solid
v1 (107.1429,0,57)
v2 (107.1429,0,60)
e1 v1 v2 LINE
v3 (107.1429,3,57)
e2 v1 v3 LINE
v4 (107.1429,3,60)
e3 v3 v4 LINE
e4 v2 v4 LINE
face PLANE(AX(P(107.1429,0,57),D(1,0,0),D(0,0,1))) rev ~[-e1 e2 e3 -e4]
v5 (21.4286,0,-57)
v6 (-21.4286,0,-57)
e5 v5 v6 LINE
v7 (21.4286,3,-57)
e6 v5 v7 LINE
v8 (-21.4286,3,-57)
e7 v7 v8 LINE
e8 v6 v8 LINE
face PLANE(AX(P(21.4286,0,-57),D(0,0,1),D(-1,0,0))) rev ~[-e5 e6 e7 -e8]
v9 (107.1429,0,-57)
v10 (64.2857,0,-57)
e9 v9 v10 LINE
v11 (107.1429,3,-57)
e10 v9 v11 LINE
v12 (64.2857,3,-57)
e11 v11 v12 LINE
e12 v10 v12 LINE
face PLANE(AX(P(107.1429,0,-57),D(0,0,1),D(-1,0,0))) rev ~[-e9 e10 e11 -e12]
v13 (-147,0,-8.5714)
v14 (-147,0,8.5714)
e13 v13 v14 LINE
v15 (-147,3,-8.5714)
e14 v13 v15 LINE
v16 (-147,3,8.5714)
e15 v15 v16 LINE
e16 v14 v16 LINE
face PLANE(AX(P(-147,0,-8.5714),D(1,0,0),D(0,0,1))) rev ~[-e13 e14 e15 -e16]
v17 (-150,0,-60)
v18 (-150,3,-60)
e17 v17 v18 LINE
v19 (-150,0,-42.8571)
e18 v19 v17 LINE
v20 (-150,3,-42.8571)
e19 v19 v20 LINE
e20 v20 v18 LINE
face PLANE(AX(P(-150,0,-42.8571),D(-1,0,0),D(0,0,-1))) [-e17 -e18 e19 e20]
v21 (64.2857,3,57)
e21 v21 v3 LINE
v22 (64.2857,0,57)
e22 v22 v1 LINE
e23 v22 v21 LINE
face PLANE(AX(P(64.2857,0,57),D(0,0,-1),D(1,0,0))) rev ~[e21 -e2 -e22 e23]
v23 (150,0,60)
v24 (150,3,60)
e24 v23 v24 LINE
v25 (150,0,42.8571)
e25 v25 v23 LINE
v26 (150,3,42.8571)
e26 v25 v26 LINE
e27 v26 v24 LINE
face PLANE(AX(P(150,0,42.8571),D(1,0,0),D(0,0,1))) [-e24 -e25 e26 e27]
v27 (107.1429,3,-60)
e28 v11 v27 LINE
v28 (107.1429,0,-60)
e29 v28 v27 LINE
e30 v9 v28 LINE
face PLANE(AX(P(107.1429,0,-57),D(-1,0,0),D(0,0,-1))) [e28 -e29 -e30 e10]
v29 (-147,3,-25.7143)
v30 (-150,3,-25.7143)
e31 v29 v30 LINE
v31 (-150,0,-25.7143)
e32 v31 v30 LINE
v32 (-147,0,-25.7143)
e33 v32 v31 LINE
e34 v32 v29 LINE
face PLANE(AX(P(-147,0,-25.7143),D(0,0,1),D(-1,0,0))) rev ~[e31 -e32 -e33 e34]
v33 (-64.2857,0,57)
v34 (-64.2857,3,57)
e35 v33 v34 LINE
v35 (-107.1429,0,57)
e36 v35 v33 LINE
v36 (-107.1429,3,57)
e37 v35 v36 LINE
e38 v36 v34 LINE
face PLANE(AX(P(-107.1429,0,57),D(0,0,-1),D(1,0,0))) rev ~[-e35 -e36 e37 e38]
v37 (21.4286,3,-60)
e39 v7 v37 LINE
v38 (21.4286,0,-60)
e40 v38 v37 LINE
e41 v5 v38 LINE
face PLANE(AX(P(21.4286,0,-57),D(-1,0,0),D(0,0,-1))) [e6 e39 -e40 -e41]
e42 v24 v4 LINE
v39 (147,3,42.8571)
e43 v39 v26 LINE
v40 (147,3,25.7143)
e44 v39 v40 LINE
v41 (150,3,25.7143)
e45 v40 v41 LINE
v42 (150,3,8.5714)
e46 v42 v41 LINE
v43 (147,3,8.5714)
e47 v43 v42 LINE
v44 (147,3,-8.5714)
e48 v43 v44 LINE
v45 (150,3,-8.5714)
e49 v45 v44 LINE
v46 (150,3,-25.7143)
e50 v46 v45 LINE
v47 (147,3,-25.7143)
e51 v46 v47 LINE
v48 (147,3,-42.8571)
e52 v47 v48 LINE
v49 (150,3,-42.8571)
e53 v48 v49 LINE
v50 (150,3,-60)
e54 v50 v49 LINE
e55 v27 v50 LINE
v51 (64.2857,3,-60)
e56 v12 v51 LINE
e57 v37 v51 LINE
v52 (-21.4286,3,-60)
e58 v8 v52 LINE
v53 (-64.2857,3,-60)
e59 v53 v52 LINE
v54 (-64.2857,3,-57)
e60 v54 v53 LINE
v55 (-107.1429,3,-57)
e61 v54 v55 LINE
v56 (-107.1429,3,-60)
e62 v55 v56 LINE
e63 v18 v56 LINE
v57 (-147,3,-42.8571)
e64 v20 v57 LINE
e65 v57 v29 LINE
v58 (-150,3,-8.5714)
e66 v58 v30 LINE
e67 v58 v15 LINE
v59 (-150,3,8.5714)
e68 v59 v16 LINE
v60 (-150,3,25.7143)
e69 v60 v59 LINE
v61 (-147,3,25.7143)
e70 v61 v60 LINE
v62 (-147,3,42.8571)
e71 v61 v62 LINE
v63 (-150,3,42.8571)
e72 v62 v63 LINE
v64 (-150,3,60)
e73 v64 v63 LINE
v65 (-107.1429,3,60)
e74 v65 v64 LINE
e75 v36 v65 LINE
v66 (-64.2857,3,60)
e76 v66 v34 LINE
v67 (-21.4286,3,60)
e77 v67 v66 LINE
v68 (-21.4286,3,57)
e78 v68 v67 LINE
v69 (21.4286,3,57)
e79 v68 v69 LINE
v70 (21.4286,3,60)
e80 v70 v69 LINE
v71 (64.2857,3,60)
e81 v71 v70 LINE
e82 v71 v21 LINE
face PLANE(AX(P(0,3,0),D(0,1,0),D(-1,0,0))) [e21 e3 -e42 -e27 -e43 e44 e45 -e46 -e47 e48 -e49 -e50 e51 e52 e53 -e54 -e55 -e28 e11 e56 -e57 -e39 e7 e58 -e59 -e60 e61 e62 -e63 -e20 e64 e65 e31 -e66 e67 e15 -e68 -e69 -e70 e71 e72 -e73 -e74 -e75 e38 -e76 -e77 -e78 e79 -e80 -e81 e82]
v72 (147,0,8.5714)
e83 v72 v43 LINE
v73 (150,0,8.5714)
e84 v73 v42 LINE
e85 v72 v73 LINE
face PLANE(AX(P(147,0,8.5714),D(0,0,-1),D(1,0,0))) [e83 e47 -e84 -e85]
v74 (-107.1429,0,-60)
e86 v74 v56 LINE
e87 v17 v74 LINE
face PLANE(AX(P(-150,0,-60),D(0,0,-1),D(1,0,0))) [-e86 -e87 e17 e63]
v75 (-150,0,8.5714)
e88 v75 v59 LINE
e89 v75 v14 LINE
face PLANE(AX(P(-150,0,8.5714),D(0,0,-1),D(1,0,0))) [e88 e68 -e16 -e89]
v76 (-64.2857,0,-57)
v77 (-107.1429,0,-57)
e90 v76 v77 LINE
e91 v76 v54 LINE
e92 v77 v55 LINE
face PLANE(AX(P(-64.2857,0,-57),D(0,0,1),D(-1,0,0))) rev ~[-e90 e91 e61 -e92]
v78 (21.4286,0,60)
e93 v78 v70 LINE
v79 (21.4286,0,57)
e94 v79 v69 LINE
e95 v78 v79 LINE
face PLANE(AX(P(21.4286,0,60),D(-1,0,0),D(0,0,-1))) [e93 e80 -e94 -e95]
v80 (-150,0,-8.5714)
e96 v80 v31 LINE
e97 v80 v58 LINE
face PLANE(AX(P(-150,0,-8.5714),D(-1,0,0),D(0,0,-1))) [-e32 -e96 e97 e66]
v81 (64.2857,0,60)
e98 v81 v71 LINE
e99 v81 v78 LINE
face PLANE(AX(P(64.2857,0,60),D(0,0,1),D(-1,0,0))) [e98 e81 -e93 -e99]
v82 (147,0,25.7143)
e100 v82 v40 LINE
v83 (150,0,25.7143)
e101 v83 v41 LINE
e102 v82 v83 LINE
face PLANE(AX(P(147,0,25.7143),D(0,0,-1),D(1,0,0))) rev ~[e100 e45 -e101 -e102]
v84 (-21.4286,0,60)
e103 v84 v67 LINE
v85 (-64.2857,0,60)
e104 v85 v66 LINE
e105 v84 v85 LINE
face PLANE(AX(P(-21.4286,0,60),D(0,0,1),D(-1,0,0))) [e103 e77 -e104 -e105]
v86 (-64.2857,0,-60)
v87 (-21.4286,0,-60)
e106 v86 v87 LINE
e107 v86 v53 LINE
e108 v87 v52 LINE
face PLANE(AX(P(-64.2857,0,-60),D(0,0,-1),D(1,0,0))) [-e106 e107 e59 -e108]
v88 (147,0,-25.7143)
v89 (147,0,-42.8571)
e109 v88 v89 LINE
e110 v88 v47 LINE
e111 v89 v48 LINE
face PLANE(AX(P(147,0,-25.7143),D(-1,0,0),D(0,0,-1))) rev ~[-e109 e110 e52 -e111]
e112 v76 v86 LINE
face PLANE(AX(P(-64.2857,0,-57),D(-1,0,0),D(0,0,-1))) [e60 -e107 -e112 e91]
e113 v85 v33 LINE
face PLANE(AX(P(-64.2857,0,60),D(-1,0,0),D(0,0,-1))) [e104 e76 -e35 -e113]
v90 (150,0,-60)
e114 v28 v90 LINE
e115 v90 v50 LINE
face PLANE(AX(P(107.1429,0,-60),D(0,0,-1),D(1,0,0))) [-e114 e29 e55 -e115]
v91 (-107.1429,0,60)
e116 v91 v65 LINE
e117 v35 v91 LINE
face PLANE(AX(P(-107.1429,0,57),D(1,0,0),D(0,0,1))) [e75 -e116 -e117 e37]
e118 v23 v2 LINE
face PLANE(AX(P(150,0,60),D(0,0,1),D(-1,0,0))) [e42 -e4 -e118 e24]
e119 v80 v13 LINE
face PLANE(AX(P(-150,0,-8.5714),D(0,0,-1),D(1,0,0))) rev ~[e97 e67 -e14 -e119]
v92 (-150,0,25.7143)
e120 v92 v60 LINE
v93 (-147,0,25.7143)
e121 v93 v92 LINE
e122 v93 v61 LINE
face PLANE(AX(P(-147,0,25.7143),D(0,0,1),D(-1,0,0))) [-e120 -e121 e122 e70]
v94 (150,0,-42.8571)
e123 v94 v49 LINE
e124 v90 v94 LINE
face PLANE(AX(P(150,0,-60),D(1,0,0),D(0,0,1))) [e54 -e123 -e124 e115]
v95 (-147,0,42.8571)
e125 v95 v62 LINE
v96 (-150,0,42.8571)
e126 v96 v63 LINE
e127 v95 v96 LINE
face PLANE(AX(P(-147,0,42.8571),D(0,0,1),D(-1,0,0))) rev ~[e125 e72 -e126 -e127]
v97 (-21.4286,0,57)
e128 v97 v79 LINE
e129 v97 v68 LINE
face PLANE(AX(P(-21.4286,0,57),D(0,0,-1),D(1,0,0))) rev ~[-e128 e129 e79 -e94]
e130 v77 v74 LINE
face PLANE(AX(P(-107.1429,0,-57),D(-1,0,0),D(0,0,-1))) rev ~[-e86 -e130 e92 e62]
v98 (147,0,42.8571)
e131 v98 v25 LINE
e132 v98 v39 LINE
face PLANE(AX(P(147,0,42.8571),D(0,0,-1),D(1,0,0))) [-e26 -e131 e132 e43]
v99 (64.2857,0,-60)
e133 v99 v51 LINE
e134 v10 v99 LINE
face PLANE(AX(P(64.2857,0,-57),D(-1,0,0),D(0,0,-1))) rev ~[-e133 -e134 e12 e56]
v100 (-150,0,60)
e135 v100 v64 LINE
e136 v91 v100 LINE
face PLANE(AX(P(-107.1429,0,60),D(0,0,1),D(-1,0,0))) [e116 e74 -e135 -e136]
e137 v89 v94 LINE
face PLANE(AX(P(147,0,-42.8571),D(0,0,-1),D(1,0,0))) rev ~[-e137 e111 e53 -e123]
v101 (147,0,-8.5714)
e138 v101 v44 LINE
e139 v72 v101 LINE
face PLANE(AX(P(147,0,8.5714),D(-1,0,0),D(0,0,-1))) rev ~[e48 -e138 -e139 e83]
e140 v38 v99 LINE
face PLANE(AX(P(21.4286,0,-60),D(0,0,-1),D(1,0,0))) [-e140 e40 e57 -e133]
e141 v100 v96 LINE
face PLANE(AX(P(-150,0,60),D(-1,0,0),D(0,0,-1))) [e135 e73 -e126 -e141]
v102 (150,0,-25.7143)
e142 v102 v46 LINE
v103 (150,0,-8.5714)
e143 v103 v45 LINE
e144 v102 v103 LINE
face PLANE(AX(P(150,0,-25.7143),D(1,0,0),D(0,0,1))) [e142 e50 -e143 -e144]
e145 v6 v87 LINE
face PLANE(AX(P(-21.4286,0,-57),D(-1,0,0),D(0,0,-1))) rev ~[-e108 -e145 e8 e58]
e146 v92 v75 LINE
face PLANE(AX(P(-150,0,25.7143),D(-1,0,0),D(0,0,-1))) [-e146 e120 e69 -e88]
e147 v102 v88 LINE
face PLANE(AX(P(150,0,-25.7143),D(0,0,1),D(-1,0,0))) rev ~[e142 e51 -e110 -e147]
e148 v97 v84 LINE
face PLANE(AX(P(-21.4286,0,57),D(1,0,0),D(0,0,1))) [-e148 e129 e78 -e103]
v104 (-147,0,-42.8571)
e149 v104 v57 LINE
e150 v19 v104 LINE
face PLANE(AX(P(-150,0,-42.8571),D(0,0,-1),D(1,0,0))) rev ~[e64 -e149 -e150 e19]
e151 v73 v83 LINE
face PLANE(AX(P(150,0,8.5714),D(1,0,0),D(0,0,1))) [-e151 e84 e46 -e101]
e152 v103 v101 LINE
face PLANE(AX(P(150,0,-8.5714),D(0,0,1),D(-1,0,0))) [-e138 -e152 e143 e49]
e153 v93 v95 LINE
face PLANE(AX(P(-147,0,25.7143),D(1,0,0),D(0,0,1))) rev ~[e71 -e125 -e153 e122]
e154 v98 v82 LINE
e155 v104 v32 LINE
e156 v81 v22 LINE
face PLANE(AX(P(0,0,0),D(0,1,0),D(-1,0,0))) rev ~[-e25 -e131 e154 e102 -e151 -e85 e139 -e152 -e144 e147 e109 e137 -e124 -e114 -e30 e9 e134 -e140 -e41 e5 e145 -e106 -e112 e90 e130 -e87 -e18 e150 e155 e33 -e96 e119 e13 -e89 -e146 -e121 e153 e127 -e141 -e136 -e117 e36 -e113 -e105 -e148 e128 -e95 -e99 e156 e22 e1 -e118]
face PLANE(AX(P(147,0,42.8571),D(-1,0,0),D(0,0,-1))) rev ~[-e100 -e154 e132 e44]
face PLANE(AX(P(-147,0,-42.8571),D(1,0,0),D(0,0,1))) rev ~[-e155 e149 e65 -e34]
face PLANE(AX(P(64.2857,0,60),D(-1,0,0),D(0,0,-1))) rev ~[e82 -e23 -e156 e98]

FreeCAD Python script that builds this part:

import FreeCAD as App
import Part
import Sketcher
from FreeCAD import Vector
Q = App.Units.Quantity

doc = App.newDocument("Part")
body = doc.addObject("PartDesign::Body", "Body")

# Sketch on XZ plane
sketch1 = body.newObject("Sketcher::SketchObject", "Sketch")
sketch1.AttachmentSupport = (doc.getObject("XZ_Plane"), [""])
sketch1.MapMode = "FlatFace"
sketch1.addGeometry(Part.LineSegment(Vector(-107.1, 60, 0), Vector(-107.1, 57, 0)), False)
sketch1.addGeometry(Part.LineSegment(Vector(-107.1, 57, 0), Vector(-64.3, 57, 0)), False)
sketch1.addGeometry(Part.LineSegment(Vector(-64.3, 57, 0), Vector(-64.3, 60, 0)), False)
sketch1.addGeometry(Part.LineSegment(Vector(-64.3, 60, 0), Vector(-21.4, 60, 0)), False)
sketch1.addGeometry(Part.LineSegment(Vector(-21.4, 60, 0), Vector(-21.4, 57, 0)), False)
sketch1.addGeometry(Part.LineSegment(Vector(-21.4, 57, 0), Vector(21.4, 57, 0)), False)
sketch1.addGeometry(Part.LineSegment(Vector(21.4, 57, 0), Vector(21.4, 60, 0)), False)
sketch1.addGeometry(Part.LineSegment(Vector(21.4, 60, 0), Vector(64.3, 60, 0)), False)
sketch1.addGeometry(Part.LineSegment(Vector(64.3, 60, 0), Vector(64.3, 57, 0)), False)
sketch1.addGeometry(Part.LineSegment(Vector(64.3, 57, 0), Vector(107.1, 57, 0)), False)
sketch1.addGeometry(Part.LineSegment(Vector(107.1, 57, 0), Vector(107.1, 60, 0)), False)
sketch1.addGeometry(Part.LineSegment(Vector(107.1, 60, 0), Vector(150, 60, 0)), False)
sketch1.addGeometry(Part.LineSegment(Vector(150, 60, 0), Vector(150, 42.9, 0)), False)
sketch1.addGeometry(Part.LineSegment(Vector(150, 42.9, 0), Vector(147, 42.9, 0)), False)
sketch1.addGeometry(Part.LineSegment(Vector(147, 42.9, 0), Vector(147, 25.7, 0)), False)
sketch1.addGeometry(Part.LineSegment(Vector(147, 25.7, 0), Vector(150, 25.7, 0)), False)
sketch1.addGeometry(Part.LineSegment(Vector(150, 25.7, 0), Vector(150, 8.6, 0)), False)
sketch1.addGeometry(Part.LineSegment(Vector(150, 8.6, 0), Vector(147, 8.6, 0)), False)
sketch1.addGeometry(Part.LineSegment(Vector(147, 8.6, 0), Vector(147, -8.6, 0)), False)
sketch1.addGeometry(Part.LineSegment(Vector(147, -8.6, 0), Vector(150, -8.6, 0)), False)
sketch1.addGeometry(Part.LineSegment(Vector(150, -8.6, 0), Vector(150, -25.7, 0)), False)
sketch1.addGeometry(Part.LineSegment(Vector(150, -25.7, 0), Vector(147, -25.7, 0)), False)
sketch1.addGeometry(Part.LineSegment(Vector(147, -25.7, 0), Vector(147, -42.9, 0)), False)
sketch1.addGeometry(Part.LineSegment(Vector(147, -42.9, 0), Vector(150, -42.9, 0)), False)
sketch1.addGeometry(Part.LineSegment(Vector(150, -42.9, 0), Vector(150, -60, 0)), False)
sketch1.addGeometry(Part.LineSegment(Vector(150, -60, 0), Vector(107.1, -60, 0)), False)
sketch1.addGeometry(Part.LineSegment(Vector(107.1, -60, 0), Vector(107.1, -57, 0)), False)
sketch1.addGeometry(Part.LineSegment(Vector(107.1, -57, 0), Vector(64.3, -57, 0)), False)
sketch1.addGeometry(Part.LineSegment(Vector(64.3, -57, 0), Vector(64.3, -60, 0)), False)
sketch1.addGeometry(Part.LineSegment(Vector(64.3, -60, 0), Vector(21.4, -60, 0)), False)
sketch1.addGeometry(Part.LineSegment(Vector(21.4, -60, 0), Vector(21.4, -57, 0)), False)
sketch1.addGeometry(Part.LineSegment(Vector(21.4, -57, 0), Vector(-21.4, -57, 0)), False)
sketch1.addGeometry(Part.LineSegment(Vector(-21.4, -57, 0), Vector(-21.4, -60, 0)), False)
sketch1.addGeometry(Part.LineSegment(Vector(-21.4, -60, 0), Vector(-64.3, -60, 0)), False)
sketch1.addGeometry(Part.LineSegment(Vector(-64.3, -60, 0), Vector(-64.3, -57, 0)), False)
sketch1.addGeometry(Part.LineSegment(Vector(-64.3, -57, 0), Vector(-107.1, -57, 0)), False)
sketch1.addGeometry(Part.LineSegment(Vector(-107.1, -57, 0), Vector(-107.1, -60, 0)), False)
sketch1.addGeometry(Part.LineSegment(Vector(-107.1, -60, 0), Vector(-150, -60, 0)), False)
sketch1.addGeometry(Part.LineSegment(Vector(-150, -60, 0), Vector(-150, -42.9, 0)), False)
sketch1.addGeometry(Part.LineSegment(Vector(-150, -42.9, 0), Vector(-147, -42.9, 0)), False)
sketch1.addGeometry(Part.LineSegment(Vector(-147, -42.9, 0), Vector(-147, -25.7, 0)), False)
sketch1.addGeometry(Part.LineSegment(Vector(-147, -25.7, 0), Vector(-150, -25.7, 0)), False)
sketch1.addGeometry(Part.LineSegment(Vector(-150, -25.7, 0), Vector(-150, -8.6, 0)), False)
sketch1.addGeometry(Part.LineSegment(Vector(-150, -8.6, 0), Vector(-147, -8.6, 0)), False)
sketch1.addGeometry(Part.LineSegment(Vector(-147, -8.6, 0), Vector(-147, 8.6, 0)), False)
sketch1.addGeometry(Part.LineSegment(Vector(-147, 8.6, 0), Vector(-150, 8.6, 0)), False)
sketch1.addGeometry(Part.LineSegment(Vector(-150, 8.6, 0), Vector(-150, 25.7, 0)), False)
sketch1.addGeometry(Part.LineSegment(Vector(-150, 25.7, 0), Vector(-147, 25.7, 0)), False)
sketch1.addGeometry(Part.LineSegment(Vector(-147, 25.7, 0), Vector(-147, 42.9, 0)), False)
sketch1.addGeometry(Part.LineSegment(Vector(-147, 42.9, 0), Vector(-150, 42.9, 0)), False)
sketch1.addGeometry(Part.LineSegment(Vector(-150, 42.9, 0), Vector(-150, 60, 0)), False)
sketch1.addGeometry(Part.LineSegment(Vector(-150, 60, 0), Vector(-107.1, 60, 0)), False)
sketch1.addConstraint(Sketcher.Constraint("Coincident", 0, 2, 1, 1))
sketch1.addConstraint(Sketcher.Constraint("Coincident", 1, 2, 2, 1))
sketch1.addConstraint(Sketcher.Constraint("Coincident", 2, 2, 3, 1))
sketch1.addConstraint(Sketcher.Constraint("Coincident", 3, 2, 4, 1))
sketch1.addConstraint(Sketcher.Constraint("Coincident", 4, 2, 5, 1))
sketch1.addConstraint(Sketcher.Constraint("Coincident", 5, 2, 6, 1))
sketch1.addConstraint(Sketcher.Constraint("Coincident", 6, 2, 7, 1))
sketch1.addConstraint(Sketcher.Constraint("Coincident", 7, 2, 8, 1))
sketch1.addConstraint(Sketcher.Constraint("Coincident", 8, 2, 9, 1))
sketch1.addConstraint(Sketcher.Constraint("Coincident", 9, 2, 10, 1))
sketch1.addConstraint(Sketcher.Constraint("Coincident", 10, 2, 11, 1))
sketch1.addConstraint(Sketcher.Constraint("Coincident", 11, 2, 12, 1))
sketch1.addConstraint(Sketcher.Constraint("Coincident", 12, 2, 13, 1))
sketch1.addConstraint(Sketcher.Constraint("Coincident", 13, 2, 14, 1))
sketch1.addConstraint(Sketcher.Constraint("Coincident", 14, 2, 15, 1))
sketch1.addConstraint(Sketcher.Constraint("Coincident", 15, 2, 16, 1))
sketch1.addConstraint(Sketcher.Constraint("Coincident", 16, 2, 17, 1))
sketch1.addConstraint(Sketcher.Constraint("Coincident", 17, 2, 18, 1))
sketch1.addConstraint(Sketcher.Constraint("Coincident", 18, 2, 19, 1))
sketch1.addConstraint(Sketcher.Constraint("Coincident", 19, 2, 20, 1))
sketch1.addConstraint(Sketcher.Constraint("Coincident", 20, 2, 21, 1))
sketch1.addConstraint(Sketcher.Constraint("Coincident", 21, 2, 22, 1))
sketch1.addConstraint(Sketcher.Constraint("Coincident", 22, 2, 23, 1))
sketch1.addConstraint(Sketcher.Constraint("Coincident", 23, 2, 24, 1))
sketch1.addConstraint(Sketcher.Constraint("Coincident", 24, 2, 25, 1))
sketch1.addConstraint(Sketcher.Constraint("Coincident", 25, 2, 26, 1))
sketch1.addConstraint(Sketcher.Constraint("Coincident", 26, 2, 27, 1))
sketch1.addConstraint(Sketcher.Constraint("Coincident", 27, 2, 28, 1))
sketch1.addConstraint(Sketcher.Constraint("Coincident", 28, 2, 29, 1))
sketch1.addConstraint(Sketcher.Constraint("Coincident", 29, 2, 30, 1))
sketch1.addConstraint(Sketcher.Constraint("Coincident", 30, 2, 31, 1))
sketch1.addConstraint(Sketcher.Constraint("Coincident", 31, 2, 32, 1))
sketch1.addConstraint(Sketcher.Constraint("Coincident", 32, 2, 33, 1))
sketch1.addConstraint(Sketcher.Constraint("Coincident", 33, 2, 34, 1))
sketch1.addConstraint(Sketcher.Constraint("Coincident", 34, 2, 35, 1))
sketch1.addConstraint(Sketcher.Constraint("Coincident", 35, 2, 36, 1))
sketch1.addConstraint(Sketcher.Constraint("Coincident", 36, 2, 37, 1))
sketch1.addConstraint(Sketcher.Constraint("Coincident", 37, 2, 38, 1))
sketch1.addConstraint(Sketcher.Constraint("Coincident", 38, 2, 39, 1))
sketch1.addConstraint(Sketcher.Constraint("Coincident", 39, 2, 40, 1))
sketch1.addConstraint(Sketcher.Constraint("Coincident", 40, 2, 41, 1))
sketch1.addConstraint(Sketcher.Constraint("Coincident", 41, 2, 42, 1))
sketch1.addConstraint(Sketcher.Constraint("Coincident", 42, 2, 43, 1))
sketch1.addConstraint(Sketcher.Constraint("Coincident", 43, 2, 44, 1))
sketch1.addConstraint(Sketcher.Constraint("Coincident", 44, 2, 45, 1))
sketch1.addConstraint(Sketcher.Constraint("Coincident", 45, 2, 46, 1))
sketch1.addConstraint(Sketcher.Constraint("Coincident", 46, 2, 47, 1))
sketch1.addConstraint(Sketcher.Constraint("Coincident", 47, 2, 48, 1))
sketch1.addConstraint(Sketcher.Constraint("Coincident", 48, 2, 49, 1))
sketch1.addConstraint(Sketcher.Constraint("Coincident", 49, 2, 50, 1))
sketch1.addConstraint(Sketcher.Constraint("Coincident", 50, 2, 51, 1))
sketch1.addConstraint(Sketcher.Constraint("Coincident", 51, 2, 0, 1))
sketch1.addConstraint(Sketcher.Constraint("Vertical", 0))
sketch1.addConstraint(Sketcher.Constraint("Horizontal", 1))
sketch1.addConstraint(Sketcher.Constraint("Vertical", 2))
sketch1.addConstraint(Sketcher.Constraint("Horizontal", 3))
sketch1.addConstraint(Sketcher.Constraint("Vertical", 4))
sketch1.addConstraint(Sketcher.Constraint("Horizontal", 5))
sketch1.addConstraint(Sketcher.Constraint("Vertical", 6))
sketch1.addConstraint(Sketcher.Constraint("Horizontal", 7))
sketch1.addConstraint(Sketcher.Constraint("Vertical", 8))
sketch1.addConstraint(Sketcher.Constraint("Horizontal", 9))
sketch1.addConstraint(Sketcher.Constraint("Vertical", 10))
sketch1.addConstraint(Sketcher.Constraint("Horizontal", 11))
sketch1.addConstraint(Sketcher.Constraint("Vertical", 12))
sketch1.addConstraint(Sketcher.Constraint("Horizontal", 13))
sketch1.addConstraint(Sketcher.Constraint("Vertical", 14))
sketch1.addConstraint(Sketcher.Constraint("Horizontal", 15))
sketch1.addConstraint(Sketcher.Constraint("Vertical", 16))
sketch1.addConstraint(Sketcher.Constraint("Horizontal", 17))
sketch1.addConstraint(Sketcher.Constraint("Vertical", 18))
sketch1.addConstraint(Sketcher.Constraint("Horizontal", 19))
sketch1.addConstraint(Sketcher.Constraint("Vertical", 20))
sketch1.addConstraint(Sketcher.Constraint("Horizontal", 21))
sketch1.addConstraint(Sketcher.Constraint("Vertical", 22))
sketch1.addConstraint(Sketcher.Constraint("Horizontal", 23))
sketch1.addConstraint(Sketcher.Constraint("Vertical", 24))
sketch1.addConstraint(Sketcher.Constraint("Horizontal", 25))
sketch1.addConstraint(Sketcher.Constraint("Vertical", 26))
sketch1.addConstraint(Sketcher.Constraint("Horizontal", 27))
sketch1.addConstraint(Sketcher.Constraint("Vertical", 28))
sketch1.addConstraint(Sketcher.Constraint("Horizontal", 29))
sketch1.addConstraint(Sketcher.Constraint("Vertical", 30))
sketch1.addConstraint(Sketcher.Constraint("Horizontal", 31))
sketch1.addConstraint(Sketcher.Constraint("Vertical", 32))
sketch1.addConstraint(Sketcher.Constraint("Horizontal", 33))
sketch1.addConstraint(Sketcher.Constraint("Vertical", 34))
sketch1.addConstraint(Sketcher.Constraint("Horizontal", 35))
sketch1.addConstraint(Sketcher.Constraint("Vertical", 36))
sketch1.addConstraint(Sketcher.Constraint("Horizontal", 37))
sketch1.addConstraint(Sketcher.Constraint("Vertical", 38))
sketch1.addConstraint(Sketcher.Constraint("Horizontal", 39))
sketch1.addConstraint(Sketcher.Constraint("Vertical", 40))
sketch1.addConstraint(Sketcher.Constraint("Horizontal", 41))
sketch1.addConstraint(Sketcher.Constraint("Vertical", 42))
sketch1.addConstraint(Sketcher.Constraint("Horizontal", 43))
sketch1.addConstraint(Sketcher.Constraint("Vertical", 44))
sketch1.addConstraint(Sketcher.Constraint("Horizontal", 45))
sketch1.addConstraint(Sketcher.Constraint("Vertical", 46))
sketch1.addConstraint(Sketcher.Constraint("Horizontal", 47))
sketch1.addConstraint(Sketcher.Constraint("Vertical", 48))
sketch1.addConstraint(Sketcher.Constraint("Horizontal", 49))
sketch1.addConstraint(Sketcher.Constraint("Vertical", 50))
sketch1.addConstraint(Sketcher.Constraint("Horizontal", 51))
sketch1.addConstraint(Sketcher.Constraint("Symmetric", 0, 2, 26, 2, -1, 1))
sketch1.addConstraint(Sketcher.Constraint("Symmetric", 2, 2, 28, 2, -1, 1))
sketch1.addConstraint(Sketcher.Constraint("Symmetric", 4, 2, 30, 2, -1, 1))
sketch1.addConstraint(Sketcher.Constraint("Symmetric", 6, 2, 32, 2, -1, 1))
sketch1.addConstraint(Sketcher.Constraint("Symmetric", 8, 2, 34, 2, -1, 1))
sketch1.addConstraint(Sketcher.Constraint("Symmetric", 10, 2, 36, 2, -1, 1))
sketch1.addConstraint(Sketcher.Constraint("Symmetric", 12, 2, 38, 2, -1, 1))
sketch1.addConstraint(Sketcher.Constraint("Symmetric", 14, 2, 40, 2, -1, 1))
sketch1.addConstraint(Sketcher.Constraint("Symmetric", 16, 2, 42, 2, -1, 1))
sketch1.addConstraint(Sketcher.Constraint("Symmetric", 18, 2, 44, 2, -1, 1))
sketch1.addConstraint(Sketcher.Constraint("Symmetric", 20, 2, 46, 2, -1, 1))
sketch1.addConstraint(Sketcher.Constraint("Symmetric", 22, 2, 48, 2, -1, 1))
sketch1.addConstraint(Sketcher.Constraint("Symmetric", 24, 2, 50, 2, -1, 1))
sketch1.addConstraint(Sketcher.Constraint("Symmetric", 3, 2, 6, 2, -2))
sketch1.addConstraint(Sketcher.Constraint("Symmetric", 1, 2, 8, 2, -2))
sketch1.addConstraint(Sketcher.Constraint("Symmetric", 25, 2, 36, 2, -2))
sketch1.addConstraint(Sketcher.Constraint("Symmetric", 23, 2, 38, 2, -2))
sketch1.addConstraint(Sketcher.Constraint("Symmetric", 21, 2, 40, 2, -2))
sketch1.addConstraint(Sketcher.Constraint("Symmetric", 19, 2, 42, 2, -2))
sketch1.addConstraint(Sketcher.Constraint("Horizontal", 1, 2, 4, 2))
sketch1.addConstraint(Sketcher.Constraint("Horizontal", 7, 2, 10, 2))
sketch1.addConstraint(Sketcher.Constraint("Vertical", 12, 2, 15, 2))
sketch1.addConstraint(Sketcher.Constraint("Vertical", 14, 2, 17, 2))
sketch1.addConstraint(Sketcher.Constraint("Equal", 1, 3))
sketch1.addConstraint(Sketcher.Constraint("Equal", 3, 5))
sketch1.addConstraint(Sketcher.Constraint("Equal", 9, 11))
sketch1.addConstraint(Sketcher.Constraint("Equal", 49, 0))
sketch1.addConstraint(Sketcher.Constraint("Equal", 12, 14))
sketch1.addConstraint(Sketcher.Constraint("Equal", 14, 16))
sketch1.addConstraint(Sketcher.Constraint("Equal", 16, 18))
sketch1.addConstraint(Sketcher.Constraint("DistanceX", 13, 2, 13, 1, Q("3 mm")))
sketch1.addConstraint(Sketcher.Constraint("DistanceY", -1, 1, 2, 2, Q("60 mm")))
sketch1.addConstraint(Sketcher.Constraint("DistanceX", -1, 1, 11, 2, Q("150 mm")))
pad1 = body.newObject("PartDesign::Pad", "Pad")
pad1.Profile = sketch1
pad1.Length = 3
pad1.Reversed = True

doc.recompute()
